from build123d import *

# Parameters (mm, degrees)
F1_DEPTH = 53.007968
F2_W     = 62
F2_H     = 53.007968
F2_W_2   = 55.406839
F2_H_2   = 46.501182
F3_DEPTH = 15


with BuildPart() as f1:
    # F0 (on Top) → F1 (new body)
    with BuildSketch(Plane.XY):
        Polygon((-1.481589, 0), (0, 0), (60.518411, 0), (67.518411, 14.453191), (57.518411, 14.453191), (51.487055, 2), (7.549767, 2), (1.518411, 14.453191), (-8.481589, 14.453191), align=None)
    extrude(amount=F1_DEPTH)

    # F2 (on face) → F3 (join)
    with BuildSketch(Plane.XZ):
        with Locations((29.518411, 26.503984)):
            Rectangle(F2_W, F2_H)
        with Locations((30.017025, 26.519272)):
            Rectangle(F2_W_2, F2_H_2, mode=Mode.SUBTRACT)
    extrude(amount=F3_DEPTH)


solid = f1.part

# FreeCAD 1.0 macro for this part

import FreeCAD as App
import Part
import Sketcher

V = App.Vector
Q = App.Units.Quantity

doc = App.newDocument("Part")
body = doc.addObject("PartDesign::Body", "Body")

# Sketch on XY plane
sketch1 = body.newObject("Sketcher::SketchObject", "Sketch")
sketch1.AttachmentSupport = (doc.getObject("XY_Plane"), [""])
sketch1.MapMode = "FlatFace"
sketch1.addGeometry([
    Part.LineSegment(V(-1.481589, 0, 0), V(60.518411, 0, 0)),  # 0
    Part.LineSegment(V(60.518411, 0, 0), V(67.518411, 14.453191, 0)),  # 1
    Part.LineSegment(V(67.518411, 14.453191, 0), V(57.518411, 14.453191, 0)),  # 2
    Part.LineSegment(V(57.518411, 14.453191, 0), V(51.487055, 2, 0)),  # 3
    Part.LineSegment(V(51.487055, 2, 0), V(7.549767, 2, 0)),  # 4
    Part.LineSegment(V(7.549767, 2, 0), V(1.518411, 14.453191, 0)),  # 5
    Part.LineSegment(V(1.518411, 14.453191, 0), V(-8.481589, 14.453191, 0)),  # 6
    Part.LineSegment(V(-8.481589, 14.453191, 0), V(-1.481589, 0, 0)),  # 7
], False)
sketch1.addConstraint([
    Sketcher.Constraint("Coincident", 0, 2, 1, 1),
    Sketcher.Constraint("Coincident", 1, 2, 2, 1),
    Sketcher.Constraint("Coincident", 2, 2, 3, 1),
    Sketcher.Constraint("Coincident", 3, 2, 4, 1),
    Sketcher.Constraint("Coincident", 4, 2, 5, 1),
    Sketcher.Constraint("Coincident", 5, 2, 6, 1),
    Sketcher.Constraint("Coincident", 6, 2, 7, 1),
    Sketcher.Constraint("Coincident", 7, 2, 0, 1),
    Sketcher.Constraint("Horizontal", 0),
    Sketcher.Constraint("Horizontal", 2),
    Sketcher.Constraint("Horizontal", 4),
    Sketcher.Constraint("Horizontal", 6),
    Sketcher.Constraint("PointOnObject", 0, 2, -1),
    Sketcher.Constraint("Parallel", 1, 3),
    Sketcher.Constraint("Parallel", 5, 7),
    Sketcher.Constraint("Horizontal", 2, 2, 5, 2),
    Sketcher.Constraint("Equal", 2, 6),
    Sketcher.Constraint("Equal", 3, 5),
    Sketcher.Constraint("DistanceX", 0, 1, 0, 2, Q("62 mm")),
    Sketcher.Constraint("DistanceX", 2, 2, 2, 1, Q("10 mm")),
    Sketcher.Constraint("DistanceY", -1, 1, 3, 2, Q("2 mm")),
    Sketcher.Constraint("DistanceX", 0, 2, 1, 2, Q("7 mm")),
    Sketcher.Constraint("Distance", 1, Q("16.059101 mm")),
    Sketcher.Constraint("DistanceX", -1, 1, 0, 2, Q("60.518411 mm")),
])
pad1 = body.newObject("PartDesign::Pad", "Pad")
pad1.Profile = sketch1
pad1.Length = 53.007968

# Sketch on XZ plane
sketch2 = body.newObject("Sketcher::SketchObject", "Sketch001")
sketch2.AttachmentSupport = (doc.getObject("XZ_Plane"), [""])
sketch2.MapMode = "FlatFace"
sketch2.addGeometry([
    Part.LineSegment(V(-1.481589, 53.007968, 0), V(-1.481589, 0, 0)),  # 0
    Part.LineSegment(V(-1.481589, 0, 0), V(60.518411, 0, 0)),  # 1
    Part.LineSegment(V(60.518411, 0, 0), V(60.518411, 53.007968, 0)),  # 2
    Part.LineSegment(V(60.518411, 53.007968, 0), V(-1.481589, 53.007968, 0)),  # 3
    Part.LineSegment(V(57.720444, 3.268681, 0), V(2.313605, 3.268681, 0)),  # 4
    Part.LineSegment(V(2.313605, 3.268681, 0), V(2.313605, 49.769863, 0)),  # 5
    Part.LineSegment(V(2.313605, 49.769863, 0), V(57.720444, 49.769863, 0)),  # 6
    Part.LineSegment(V(57.720444, 49.769863, 0), V(57.720444, 3.268681, 0)),  # 7
], False)
sketch2.addConstraint([
    Sketcher.Constraint("Coincident", 0, 2, 1, 1),
    Sketcher.Constraint("Coincident", 1, 2, 2, 1),
    Sketcher.Constraint("Coincident", 2, 2, 3, 1),
    Sketcher.Constraint("Coincident", 3, 2, 0, 1),
    Sketcher.Constraint("Coincident", 4, 2, 5, 1),
    Sketcher.Constraint("Coincident", 5, 2, 6, 1),
    Sketcher.Constraint("Coincident", 6, 2, 7, 1),
    Sketcher.Constraint("Coincident", 7, 2, 4, 1),
    Sketcher.Constraint("Vertical", 0),
    Sketcher.Constraint("Horizontal", 1),
    Sketcher.Constraint("Vertical", 2),
    Sketcher.Constraint("Horizontal", 3),
    Sketcher.Constraint("Horizontal", 4),
    Sketcher.Constraint("Vertical", 5),
    Sketcher.Constraint("Horizontal", 6),
    Sketcher.Constraint("Vertical", 7),
    Sketcher.Constraint("PointOnObject", 0, 2, -1),
    Sketcher.Constraint("DistanceX", 1, 1, 1, 2, Q("62 mm")),
    Sketcher.Constraint("DistanceX", 4, 2, 4, 1, Q("55.406839 mm")),
    Sketcher.Constraint("DistanceY", 0, 2, 0, 1, Q("53.007968 mm")),
    Sketcher.Constraint("DistanceY", 5, 1, 5, 2, Q("46.501182 mm")),
    Sketcher.Constraint("DistanceX", 0, 2, -1, 1, Q("1.481589 mm")),
    Sketcher.Constraint("DistanceY", -1, 1, 4, 2, Q("3.268681 mm")),
    Sketcher.Constraint("DistanceX", -1, 1, 4, 2, Q("2.313605 mm")),
])
pad2 = body.newObject("PartDesign::Pad", "Pad001")
pad2.Profile = sketch2
pad2.Length = 15

doc.recompute()
